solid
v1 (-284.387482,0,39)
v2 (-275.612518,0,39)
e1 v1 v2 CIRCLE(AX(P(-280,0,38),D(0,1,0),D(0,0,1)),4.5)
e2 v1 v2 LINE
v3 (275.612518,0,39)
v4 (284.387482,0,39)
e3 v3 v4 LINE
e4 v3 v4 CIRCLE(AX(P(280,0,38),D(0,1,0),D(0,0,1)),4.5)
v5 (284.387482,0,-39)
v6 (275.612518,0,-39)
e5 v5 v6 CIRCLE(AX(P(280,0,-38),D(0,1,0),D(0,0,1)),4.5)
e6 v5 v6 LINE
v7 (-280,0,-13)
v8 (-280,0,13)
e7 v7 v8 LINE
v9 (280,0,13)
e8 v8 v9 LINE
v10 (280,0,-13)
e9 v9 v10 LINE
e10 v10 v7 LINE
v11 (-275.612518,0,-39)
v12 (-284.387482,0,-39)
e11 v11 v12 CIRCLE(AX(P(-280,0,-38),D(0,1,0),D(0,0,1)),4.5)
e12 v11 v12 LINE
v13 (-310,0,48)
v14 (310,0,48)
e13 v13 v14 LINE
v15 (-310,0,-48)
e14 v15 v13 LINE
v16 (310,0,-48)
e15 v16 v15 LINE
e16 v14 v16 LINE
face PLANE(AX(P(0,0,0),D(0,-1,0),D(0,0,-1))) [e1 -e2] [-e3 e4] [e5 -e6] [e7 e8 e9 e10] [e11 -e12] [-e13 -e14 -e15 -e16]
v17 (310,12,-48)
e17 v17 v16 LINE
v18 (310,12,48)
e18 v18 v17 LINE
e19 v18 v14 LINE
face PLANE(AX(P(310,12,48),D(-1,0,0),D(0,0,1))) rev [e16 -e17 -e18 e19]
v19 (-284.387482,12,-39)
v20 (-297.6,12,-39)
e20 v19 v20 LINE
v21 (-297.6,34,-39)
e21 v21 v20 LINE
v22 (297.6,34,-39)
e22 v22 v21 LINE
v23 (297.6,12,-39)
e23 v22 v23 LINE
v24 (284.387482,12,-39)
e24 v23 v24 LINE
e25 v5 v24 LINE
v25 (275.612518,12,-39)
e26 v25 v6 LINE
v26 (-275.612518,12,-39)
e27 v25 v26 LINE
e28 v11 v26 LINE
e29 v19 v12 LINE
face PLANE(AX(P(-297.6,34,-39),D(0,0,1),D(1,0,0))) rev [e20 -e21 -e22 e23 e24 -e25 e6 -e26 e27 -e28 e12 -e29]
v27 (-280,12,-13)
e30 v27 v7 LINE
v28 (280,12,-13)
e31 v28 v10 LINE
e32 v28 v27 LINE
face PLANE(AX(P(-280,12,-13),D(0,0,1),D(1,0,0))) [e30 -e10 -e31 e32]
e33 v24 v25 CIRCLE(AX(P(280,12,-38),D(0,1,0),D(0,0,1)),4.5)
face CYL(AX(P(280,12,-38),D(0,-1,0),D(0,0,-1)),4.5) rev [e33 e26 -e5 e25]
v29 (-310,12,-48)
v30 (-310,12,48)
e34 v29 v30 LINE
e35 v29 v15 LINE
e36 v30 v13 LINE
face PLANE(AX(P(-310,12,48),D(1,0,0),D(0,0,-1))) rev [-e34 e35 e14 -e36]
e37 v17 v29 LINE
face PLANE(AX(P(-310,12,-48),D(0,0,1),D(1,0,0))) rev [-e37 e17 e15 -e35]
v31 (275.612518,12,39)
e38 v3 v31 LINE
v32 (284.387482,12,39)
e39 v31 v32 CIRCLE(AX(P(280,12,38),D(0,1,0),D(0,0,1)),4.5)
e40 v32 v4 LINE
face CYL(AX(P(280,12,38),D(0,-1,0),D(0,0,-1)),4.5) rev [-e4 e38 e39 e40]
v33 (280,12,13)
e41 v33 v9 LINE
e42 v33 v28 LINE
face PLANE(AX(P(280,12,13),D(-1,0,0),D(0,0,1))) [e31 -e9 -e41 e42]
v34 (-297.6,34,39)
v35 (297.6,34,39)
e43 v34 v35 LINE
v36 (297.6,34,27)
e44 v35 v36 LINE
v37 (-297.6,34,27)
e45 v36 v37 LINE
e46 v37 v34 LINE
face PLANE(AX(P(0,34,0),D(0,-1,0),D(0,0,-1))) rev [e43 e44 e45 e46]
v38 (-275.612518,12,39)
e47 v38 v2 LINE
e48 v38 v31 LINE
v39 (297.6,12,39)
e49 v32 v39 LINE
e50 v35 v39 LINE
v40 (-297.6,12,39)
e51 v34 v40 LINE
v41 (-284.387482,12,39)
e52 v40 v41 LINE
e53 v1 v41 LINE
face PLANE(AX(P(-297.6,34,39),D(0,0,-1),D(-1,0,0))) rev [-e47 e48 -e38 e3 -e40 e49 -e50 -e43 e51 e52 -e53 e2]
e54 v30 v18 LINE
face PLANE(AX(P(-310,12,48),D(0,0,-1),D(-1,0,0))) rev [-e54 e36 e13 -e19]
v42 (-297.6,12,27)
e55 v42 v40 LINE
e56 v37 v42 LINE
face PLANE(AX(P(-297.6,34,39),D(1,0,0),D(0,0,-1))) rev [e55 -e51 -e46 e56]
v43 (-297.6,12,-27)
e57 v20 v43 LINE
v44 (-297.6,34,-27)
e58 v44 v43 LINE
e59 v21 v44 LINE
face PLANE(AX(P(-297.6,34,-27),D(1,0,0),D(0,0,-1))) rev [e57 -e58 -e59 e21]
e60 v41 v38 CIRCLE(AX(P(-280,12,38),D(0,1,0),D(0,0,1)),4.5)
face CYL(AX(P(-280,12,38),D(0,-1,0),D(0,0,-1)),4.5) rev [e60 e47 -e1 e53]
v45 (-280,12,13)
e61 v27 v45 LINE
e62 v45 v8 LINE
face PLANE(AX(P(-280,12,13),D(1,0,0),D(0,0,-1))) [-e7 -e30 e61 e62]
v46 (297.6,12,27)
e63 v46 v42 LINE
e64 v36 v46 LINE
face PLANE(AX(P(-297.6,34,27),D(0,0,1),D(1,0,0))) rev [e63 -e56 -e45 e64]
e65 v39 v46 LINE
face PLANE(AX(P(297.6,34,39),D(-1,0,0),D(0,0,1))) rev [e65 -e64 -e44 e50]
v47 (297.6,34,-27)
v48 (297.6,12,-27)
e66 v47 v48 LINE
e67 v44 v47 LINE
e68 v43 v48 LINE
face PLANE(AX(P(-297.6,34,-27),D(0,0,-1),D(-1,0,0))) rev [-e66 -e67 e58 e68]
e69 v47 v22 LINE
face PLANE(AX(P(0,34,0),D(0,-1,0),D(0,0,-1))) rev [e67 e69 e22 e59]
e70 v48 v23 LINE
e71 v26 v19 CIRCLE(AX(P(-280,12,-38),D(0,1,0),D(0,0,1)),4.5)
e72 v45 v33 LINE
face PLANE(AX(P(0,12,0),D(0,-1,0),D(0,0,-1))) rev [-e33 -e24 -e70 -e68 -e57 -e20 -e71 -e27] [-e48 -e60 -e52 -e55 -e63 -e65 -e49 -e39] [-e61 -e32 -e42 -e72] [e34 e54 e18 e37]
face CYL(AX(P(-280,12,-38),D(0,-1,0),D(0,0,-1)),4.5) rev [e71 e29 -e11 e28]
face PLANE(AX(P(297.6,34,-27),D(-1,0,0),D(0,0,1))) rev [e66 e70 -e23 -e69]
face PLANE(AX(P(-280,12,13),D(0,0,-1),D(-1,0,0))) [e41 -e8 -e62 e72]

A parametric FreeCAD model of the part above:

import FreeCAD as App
import Part
import Sketcher

V = App.Vector
Q = App.Units.Quantity

doc = App.newDocument("Part")
params = doc.addObject("Spreadsheet::Sheet", "Params")
for row, (alias, value) in enumerate([
    ("sketch1_diameter", "9 mm"),
    ("sketch1_width", "620 mm"),
    ("sketch1_width2", "560 mm"),
    ("sketch1_height", "96 mm"),
    ("sketch1_height2", "26 mm"),
    ("pad1_length", "12 mm"),
    ("sketch2_height", "12 mm"),
    ("sketch2_width", "595.2 mm"),
    ("pad2_length", "34 mm"),
], start=1):
    params.set(f"A{row}", alias)
    params.set(f"B{row}", "=" + value)
    params.setAlias(f"B{row}", alias)

body = doc.addObject("PartDesign::Body", "Body")

sketch1 = body.newObject("Sketcher::SketchObject", "Sketch")
sketch1.AttachmentSupport = (doc.getObject("XZ_Plane"), [""])
sketch1.MapMode = "FlatFace"
sketch1.addGeometry(Part.LineSegment(V(-310, -48, 0), V(-310, 48, 0)), False)
sketch1.addGeometry(Part.LineSegment(V(-310, 48, 0), V(310, 48, 0)), False)
sketch1.addGeometry(Part.LineSegment(V(310, 48, 0), V(310, -48, 0)), False)
sketch1.addGeometry(Part.LineSegment(V(310, -48, 0), V(-310, -48, 0)), False)
sketch1.addGeometry(Part.Circle(V(-280, 38, 0), V(0, 0, 1), 4.5), False)
sketch1.addGeometry(Part.Circle(V(280, 38, 0), V(0, 0, 1), 4.5), False)
sketch1.addGeometry(Part.LineSegment(V(280, 13, 0), V(-280, 13, 0)), False)
sketch1.addGeometry(Part.LineSegment(V(-280, 13, 0), V(-280, -13, 0)), False)
sketch1.addGeometry(Part.LineSegment(V(-280, -13, 0), V(280, -13, 0)), False)
sketch1.addGeometry(Part.LineSegment(V(280, -13, 0), V(280, 13, 0)), False)
sketch1.addGeometry(Part.Circle(V(-280, -38, 0), V(0, 0, 1), 4.5), False)
sketch1.addGeometry(Part.Circle(V(280, -38, 0), V(0, 0, 1), 4.5), False)
sketch1.addConstraint(Sketcher.Constraint("Coincident", 0, 2, 1, 1))
sketch1.addConstraint(Sketcher.Constraint("Coincident", 1, 2, 2, 1))
sketch1.addConstraint(Sketcher.Constraint("Coincident", 2, 2, 3, 1))
sketch1.addConstraint(Sketcher.Constraint("Coincident", 3, 2, 0, 1))
sketch1.addConstraint(Sketcher.Constraint("Coincident", 6, 2, 7, 1))
sketch1.addConstraint(Sketcher.Constraint("Coincident", 7, 2, 8, 1))
sketch1.addConstraint(Sketcher.Constraint("Coincident", 8, 2, 9, 1))
sketch1.addConstraint(Sketcher.Constraint("Coincident", 9, 2, 6, 1))
sketch1.addConstraint(Sketcher.Constraint("Vertical", 0))
sketch1.addConstraint(Sketcher.Constraint("Horizontal", 1))
sketch1.addConstraint(Sketcher.Constraint("Vertical", 2))
sketch1.addConstraint(Sketcher.Constraint("Horizontal", 3))
sketch1.addConstraint(Sketcher.Constraint("Horizontal", 6))
sketch1.addConstraint(Sketcher.Constraint("Vertical", 7))
sketch1.addConstraint(Sketcher.Constraint("Horizontal", 8))
sketch1.addConstraint(Sketcher.Constraint("Vertical", 9))
sketch1.addConstraint(Sketcher.Constraint("Equal", 4, 5))
sketch1.addConstraint(Sketcher.Constraint("Equal", 5, 10))
sketch1.addConstraint(Sketcher.Constraint("Equal", 10, 11))
sketch1.addConstraint(Sketcher.Constraint("Symmetric", 5, 3, 10, 3, -1, 1))
sketch1.addConstraint(Sketcher.Constraint("Symmetric", 4, 3, 11, 3, -1, 1))
sketch1.addConstraint(Sketcher.Constraint("Symmetric", 0, 2, 2, 2, -1, 1))
sketch1.addConstraint(Sketcher.Constraint("Symmetric", 6, 2, 8, 2, -1, 1))
sketch1.addConstraint(Sketcher.Constraint("Symmetric", 4, 3, 5, 3, -2))
sketch1.addConstraint(Sketcher.Constraint("Vertical", 10, 3, 6, 2))
sketch1.addConstraint(Sketcher.Constraint("Diameter", 4, Q("9 mm")))
sketch1.addConstraint(Sketcher.Constraint("DistanceX", 1, 1, 1, 2, Q("620 mm")))
sketch1.addConstraint(Sketcher.Constraint("DistanceX", 6, 2, 6, 1, Q("560 mm")))
sketch1.addConstraint(Sketcher.Constraint("DistanceY", 0, 1, 0, 2, Q("96 mm")))
sketch1.addConstraint(Sketcher.Constraint("DistanceY", 7, 2, 7, 1, Q("26 mm")))
sketch1.addConstraint(Sketcher.Constraint("DistanceY", -1, 1, 4, 3, Q("38 mm")))
sketch1.setExpression("Constraints[25]", "Params.sketch1_diameter")
sketch1.setExpression("Constraints[26]", "Params.sketch1_width")
sketch1.setExpression("Constraints[27]", "Params.sketch1_width2")
sketch1.setExpression("Constraints[28]", "Params.sketch1_height")
sketch1.setExpression("Constraints[29]", "Params.sketch1_height2")
pad1 = body.newObject("PartDesign::Pad", "Pad")
pad1.Profile = sketch1
pad1.setExpression("Length", "Params.pad1_length")
pad1.Reversed = True

sketch2 = body.newObject("Sketcher::SketchObject", "Sketch001")
sketch2.AttachmentSupport = (doc.getObject("XZ_Plane"), [""])
sketch2.MapMode = "FlatFace"
sketch2.addGeometry(Part.LineSegment(V(-297.6, -39, 0), V(-297.6, -27, 0)), False)
sketch2.addGeometry(Part.LineSegment(V(-297.6, -27, 0), V(297.6, -27, 0)), False)
sketch2.addGeometry(Part.LineSegment(V(297.6, -27, 0), V(297.6, -39, 0)), False)
sketch2.addGeometry(Part.LineSegment(V(297.6, -39, 0), V(-297.6, -39, 0)), False)
sketch2.addGeometry(Part.LineSegment(V(-297.6, 27, 0), V(-297.6, 39, 0)), False)
sketch2.addGeometry(Part.LineSegment(V(-297.6, 39, 0), V(297.6, 39, 0)), False)
sketch2.addGeometry(Part.LineSegment(V(297.6, 39, 0), V(297.6, 27, 0)), False)
sketch2.addGeometry(Part.LineSegment(V(297.6, 27, 0), V(-297.6, 27, 0)), False)
sketch2.addConstraint(Sketcher.Constraint("Coincident", 0, 2, 1, 1))
sketch2.addConstraint(Sketcher.Constraint("Coincident", 1, 2, 2, 1))
sketch2.addConstraint(Sketcher.Constraint("Coincident", 2, 2, 3, 1))
sketch2.addConstraint(Sketcher.Constraint("Coincident", 3, 2, 0, 1))
sketch2.addConstraint(Sketcher.Constraint("Coincident", 4, 2, 5, 1))
sketch2.addConstraint(Sketcher.Constraint("Coincident", 5, 2, 6, 1))
sketch2.addConstraint(Sketcher.Constraint("Coincident", 6, 2, 7, 1))
sketch2.addConstraint(Sketcher.Constraint("Coincident", 7, 2, 4, 1))
sketch2.addConstraint(Sketcher.Constraint("Vertical", 0))
sketch2.addConstraint(Sketcher.Constraint("Horizontal", 1))
sketch2.addConstraint(Sketcher.Constraint("Vertical", 2))
sketch2.addConstraint(Sketcher.Constraint("Horizontal", 3))
sketch2.addConstraint(Sketcher.Constraint("Vertical", 4))
sketch2.addConstraint(Sketcher.Constraint("Horizontal", 5))
sketch2.addConstraint(Sketcher.Constraint("Vertical", 6))
sketch2.addConstraint(Sketcher.Constraint("Horizontal", 7))
sketch2.addConstraint(Sketcher.Constraint("Symmetric", 2, 2, 4, 2, -1, 1))
sketch2.addConstraint(Sketcher.Constraint("Symmetric", 0, 2, 6, 2, -1, 1))
sketch2.addConstraint(Sketcher.Constraint("Vertical", 3, 2, 4, 2))
sketch2.addConstraint(Sketcher.Constraint("DistanceY", 0, 1, 0, 2, Q("12 mm")))
sketch2.addConstraint(Sketcher.Constraint("DistanceX", 1, 1, 1, 2, Q("595.2 mm")))
sketch2.addConstraint(Sketcher.Constraint("DistanceY", 0, 2, -1, 1, Q("27 mm")))
sketch2.setExpression("Constraints[19]", "Params.sketch2_height")
sketch2.setExpression("Constraints[20]", "Params.sketch2_width")
pad2 = body.newObject("PartDesign::Pad", "Pad001")
pad2.Profile = sketch2
pad2.setExpression("Length", "Params.pad2_length")
pad2.Reversed = True

doc.recompute()
